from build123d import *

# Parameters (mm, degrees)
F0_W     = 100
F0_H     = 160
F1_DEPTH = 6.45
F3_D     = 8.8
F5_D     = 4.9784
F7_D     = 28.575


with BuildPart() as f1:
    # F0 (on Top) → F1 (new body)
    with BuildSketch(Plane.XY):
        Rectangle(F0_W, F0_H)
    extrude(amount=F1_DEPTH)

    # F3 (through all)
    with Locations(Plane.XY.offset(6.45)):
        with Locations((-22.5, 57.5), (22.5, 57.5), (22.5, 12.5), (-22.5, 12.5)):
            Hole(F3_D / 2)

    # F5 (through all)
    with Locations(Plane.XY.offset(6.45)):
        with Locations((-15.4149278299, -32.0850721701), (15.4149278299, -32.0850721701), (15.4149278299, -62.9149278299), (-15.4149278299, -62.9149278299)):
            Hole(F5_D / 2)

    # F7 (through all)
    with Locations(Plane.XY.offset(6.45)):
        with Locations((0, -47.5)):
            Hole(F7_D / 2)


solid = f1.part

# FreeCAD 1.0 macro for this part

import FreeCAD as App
import Part
import Sketcher

V = App.Vector
Q = App.Units.Quantity


def add_polygon(sketch, points):
    """Adds a closed chain of lines whose ends are joined by coincident constraints."""
    first, n = sketch.GeometryCount, len(points)
    for a, b in zip(points, points[1:] + points[:1]):
        sketch.addGeometry(Part.LineSegment(App.Vector(*a, 0), App.Vector(*b, 0)), False)
    for i in range(n):
        sketch.addConstraint(Sketcher.Constraint("Coincident", first + i, 2, first + (i + 1) % n, 1))

doc = App.newDocument("Part")
body = doc.addObject("PartDesign::Body", "Body")

# Sketch on XY plane
sketch1 = body.newObject("Sketcher::SketchObject", "Sketch")
sketch1.AttachmentSupport = (doc.getObject("XY_Plane"), [""])
sketch1.MapMode = "FlatFace"
add_polygon(sketch1, [(-50, 80), (-50, -80), (50, -80), (50, 80)])  # lines 0-3
sketch1.addConstraint(Sketcher.Constraint("Vertical", 0))
sketch1.addConstraint(Sketcher.Constraint("Horizontal", 1))
sketch1.addConstraint(Sketcher.Constraint("Vertical", 2))
sketch1.addConstraint(Sketcher.Constraint("Horizontal", 3))
sketch1.addConstraint(Sketcher.Constraint("Symmetric", 0, 2, 2, 2, -1, 1))
sketch1.addConstraint(Sketcher.Constraint("DistanceX", 1, 1, 1, 2, Q("100 mm")))
sketch1.addConstraint(Sketcher.Constraint("DistanceY", 0, 2, 0, 1, Q("160 mm")))
pad1 = body.newObject("PartDesign::Pad", "Pad")
pad1.Profile = sketch1
pad1.Length = 6.45

# Sketch on XY plane
sketch2 = body.newObject("Sketcher::SketchObject", "Sketch001")
sketch2.AttachmentSupport = (doc.getObject("XY_Plane"), [""])
sketch2.MapMode = "FlatFace"
sketch2.AttachmentOffset = App.Placement(V(0, 0, 6.45), App.Rotation())
sketch2.addGeometry(Part.Circle(V(-22.5, 57.5, 0), V(0, 0, 1), 4.4), False)
sketch2.addGeometry(Part.Circle(V(22.5, 57.5, 0), V(0, 0, 1), 4.4), False)
sketch2.addGeometry(Part.Circle(V(22.5, 12.5, 0), V(0, 0, 1), 4.4), False)
sketch2.addGeometry(Part.Circle(V(-22.5, 12.5, 0), V(0, 0, 1), 4.4), False)
sketch2.addConstraint(Sketcher.Constraint("Equal", 0, 1))
sketch2.addConstraint(Sketcher.Constraint("Equal", 1, 2))
sketch2.addConstraint(Sketcher.Constraint("Equal", 2, 3))
sketch2.addConstraint(Sketcher.Constraint("Symmetric", 0, 3, 1, 3, -2))
sketch2.addConstraint(Sketcher.Constraint("Symmetric", 2, 3, 3, 3, -2))
sketch2.addConstraint(Sketcher.Constraint("Vertical", 1, 3, 2, 3))
sketch2.addConstraint(Sketcher.Constraint("Diameter", 0, Q("8.8 mm")))
sketch2.addConstraint(Sketcher.Constraint("DistanceX", 0, 3, 1, 3, Q("45 mm")))
sketch2.addConstraint(Sketcher.Constraint("DistanceY", 2, 3, 1, 3, Q("45 mm")))
sketch2.addConstraint(Sketcher.Constraint("DistanceY", -1, 1, 0, 3, Q("57.5 mm")))
doc.recompute()
hole = body.newObject("PartDesign::Hole", "Hole")
hole.Profile = sketch2
hole.ThreadType = "None"
hole.Diameter = 8.8
hole.DepthType = "ThroughAll"

# Sketch on XY plane
sketch3 = body.newObject("Sketcher::SketchObject", "Sketch002")
sketch3.AttachmentSupport = (doc.getObject("XY_Plane"), [""])
sketch3.MapMode = "FlatFace"
sketch3.AttachmentOffset = App.Placement(V(0, 0, 6.45), App.Rotation())
sketch3.addGeometry(Part.Circle(V(-15.4, -32.1, 0), V(0, 0, 1), 2.5), False)
sketch3.addGeometry(Part.Circle(V(15.4, -32.1, 0), V(0, 0, 1), 2.5), False)
sketch3.addGeometry(Part.Circle(V(15.4, -62.9, 0), V(0, 0, 1), 2.5), False)
sketch3.addGeometry(Part.Circle(V(-15.4, -62.9, 0), V(0, 0, 1), 2.5), False)
sketch3.addConstraint(Sketcher.Constraint("Equal", 0, 1))
sketch3.addConstraint(Sketcher.Constraint("Equal", 1, 2))
sketch3.addConstraint(Sketcher.Constraint("Equal", 2, 3))
sketch3.addConstraint(Sketcher.Constraint("Symmetric", 0, 3, 1, 3, -2))
sketch3.addConstraint(Sketcher.Constraint("Symmetric", 2, 3, 3, 3, -2))
sketch3.addConstraint(Sketcher.Constraint("Vertical", 1, 3, 2, 3))
sketch3.addConstraint(Sketcher.Constraint("Diameter", 0, Q("4.9784 mm")))
sketch3.addConstraint(Sketcher.Constraint("DistanceX", 0, 3, -1, 1, Q("15.414928 mm")))
sketch3.addConstraint(Sketcher.Constraint("DistanceY", 0, 3, -1, 1, Q("32.085072 mm")))
sketch3.addConstraint(Sketcher.Constraint("DistanceY", 2, 3, -1, 1, Q("62.914928 mm")))
doc.recompute()
hole2 = body.newObject("PartDesign::Hole", "Hole001")
hole2.Profile = sketch3
hole2.ThreadType = "None"
hole2.Diameter = 4.9784
hole2.DepthType = "ThroughAll"

# Sketch on XY plane
sketch4 = body.newObject("Sketcher::SketchObject", "Sketch003")
sketch4.AttachmentSupport = (doc.getObject("XY_Plane"), [""])
sketch4.MapMode = "FlatFace"
sketch4.AttachmentOffset = App.Placement(V(0, 0, 6.45), App.Rotation())
sketch4.addGeometry(Part.Circle(V(0, -48, 0), V(0, 0, 1), 14), False)
sketch4.addConstraint(Sketcher.Constraint("PointOnObject", 0, 3, -2))
sketch4.addConstraint(Sketcher.Constraint("Diameter", 0, Q("28.575 mm")))
sketch4.addConstraint(Sketcher.Constraint("DistanceY", 0, 3, -1, 1, Q("47.5 mm")))
doc.recompute()
hole3 = body.newObject("PartDesign::Hole", "Hole002")
hole3.Profile = sketch4
hole3.ThreadType = "None"
hole3.Diameter = 28.575
hole3.DepthType = "ThroughAll"

doc.recompute()
